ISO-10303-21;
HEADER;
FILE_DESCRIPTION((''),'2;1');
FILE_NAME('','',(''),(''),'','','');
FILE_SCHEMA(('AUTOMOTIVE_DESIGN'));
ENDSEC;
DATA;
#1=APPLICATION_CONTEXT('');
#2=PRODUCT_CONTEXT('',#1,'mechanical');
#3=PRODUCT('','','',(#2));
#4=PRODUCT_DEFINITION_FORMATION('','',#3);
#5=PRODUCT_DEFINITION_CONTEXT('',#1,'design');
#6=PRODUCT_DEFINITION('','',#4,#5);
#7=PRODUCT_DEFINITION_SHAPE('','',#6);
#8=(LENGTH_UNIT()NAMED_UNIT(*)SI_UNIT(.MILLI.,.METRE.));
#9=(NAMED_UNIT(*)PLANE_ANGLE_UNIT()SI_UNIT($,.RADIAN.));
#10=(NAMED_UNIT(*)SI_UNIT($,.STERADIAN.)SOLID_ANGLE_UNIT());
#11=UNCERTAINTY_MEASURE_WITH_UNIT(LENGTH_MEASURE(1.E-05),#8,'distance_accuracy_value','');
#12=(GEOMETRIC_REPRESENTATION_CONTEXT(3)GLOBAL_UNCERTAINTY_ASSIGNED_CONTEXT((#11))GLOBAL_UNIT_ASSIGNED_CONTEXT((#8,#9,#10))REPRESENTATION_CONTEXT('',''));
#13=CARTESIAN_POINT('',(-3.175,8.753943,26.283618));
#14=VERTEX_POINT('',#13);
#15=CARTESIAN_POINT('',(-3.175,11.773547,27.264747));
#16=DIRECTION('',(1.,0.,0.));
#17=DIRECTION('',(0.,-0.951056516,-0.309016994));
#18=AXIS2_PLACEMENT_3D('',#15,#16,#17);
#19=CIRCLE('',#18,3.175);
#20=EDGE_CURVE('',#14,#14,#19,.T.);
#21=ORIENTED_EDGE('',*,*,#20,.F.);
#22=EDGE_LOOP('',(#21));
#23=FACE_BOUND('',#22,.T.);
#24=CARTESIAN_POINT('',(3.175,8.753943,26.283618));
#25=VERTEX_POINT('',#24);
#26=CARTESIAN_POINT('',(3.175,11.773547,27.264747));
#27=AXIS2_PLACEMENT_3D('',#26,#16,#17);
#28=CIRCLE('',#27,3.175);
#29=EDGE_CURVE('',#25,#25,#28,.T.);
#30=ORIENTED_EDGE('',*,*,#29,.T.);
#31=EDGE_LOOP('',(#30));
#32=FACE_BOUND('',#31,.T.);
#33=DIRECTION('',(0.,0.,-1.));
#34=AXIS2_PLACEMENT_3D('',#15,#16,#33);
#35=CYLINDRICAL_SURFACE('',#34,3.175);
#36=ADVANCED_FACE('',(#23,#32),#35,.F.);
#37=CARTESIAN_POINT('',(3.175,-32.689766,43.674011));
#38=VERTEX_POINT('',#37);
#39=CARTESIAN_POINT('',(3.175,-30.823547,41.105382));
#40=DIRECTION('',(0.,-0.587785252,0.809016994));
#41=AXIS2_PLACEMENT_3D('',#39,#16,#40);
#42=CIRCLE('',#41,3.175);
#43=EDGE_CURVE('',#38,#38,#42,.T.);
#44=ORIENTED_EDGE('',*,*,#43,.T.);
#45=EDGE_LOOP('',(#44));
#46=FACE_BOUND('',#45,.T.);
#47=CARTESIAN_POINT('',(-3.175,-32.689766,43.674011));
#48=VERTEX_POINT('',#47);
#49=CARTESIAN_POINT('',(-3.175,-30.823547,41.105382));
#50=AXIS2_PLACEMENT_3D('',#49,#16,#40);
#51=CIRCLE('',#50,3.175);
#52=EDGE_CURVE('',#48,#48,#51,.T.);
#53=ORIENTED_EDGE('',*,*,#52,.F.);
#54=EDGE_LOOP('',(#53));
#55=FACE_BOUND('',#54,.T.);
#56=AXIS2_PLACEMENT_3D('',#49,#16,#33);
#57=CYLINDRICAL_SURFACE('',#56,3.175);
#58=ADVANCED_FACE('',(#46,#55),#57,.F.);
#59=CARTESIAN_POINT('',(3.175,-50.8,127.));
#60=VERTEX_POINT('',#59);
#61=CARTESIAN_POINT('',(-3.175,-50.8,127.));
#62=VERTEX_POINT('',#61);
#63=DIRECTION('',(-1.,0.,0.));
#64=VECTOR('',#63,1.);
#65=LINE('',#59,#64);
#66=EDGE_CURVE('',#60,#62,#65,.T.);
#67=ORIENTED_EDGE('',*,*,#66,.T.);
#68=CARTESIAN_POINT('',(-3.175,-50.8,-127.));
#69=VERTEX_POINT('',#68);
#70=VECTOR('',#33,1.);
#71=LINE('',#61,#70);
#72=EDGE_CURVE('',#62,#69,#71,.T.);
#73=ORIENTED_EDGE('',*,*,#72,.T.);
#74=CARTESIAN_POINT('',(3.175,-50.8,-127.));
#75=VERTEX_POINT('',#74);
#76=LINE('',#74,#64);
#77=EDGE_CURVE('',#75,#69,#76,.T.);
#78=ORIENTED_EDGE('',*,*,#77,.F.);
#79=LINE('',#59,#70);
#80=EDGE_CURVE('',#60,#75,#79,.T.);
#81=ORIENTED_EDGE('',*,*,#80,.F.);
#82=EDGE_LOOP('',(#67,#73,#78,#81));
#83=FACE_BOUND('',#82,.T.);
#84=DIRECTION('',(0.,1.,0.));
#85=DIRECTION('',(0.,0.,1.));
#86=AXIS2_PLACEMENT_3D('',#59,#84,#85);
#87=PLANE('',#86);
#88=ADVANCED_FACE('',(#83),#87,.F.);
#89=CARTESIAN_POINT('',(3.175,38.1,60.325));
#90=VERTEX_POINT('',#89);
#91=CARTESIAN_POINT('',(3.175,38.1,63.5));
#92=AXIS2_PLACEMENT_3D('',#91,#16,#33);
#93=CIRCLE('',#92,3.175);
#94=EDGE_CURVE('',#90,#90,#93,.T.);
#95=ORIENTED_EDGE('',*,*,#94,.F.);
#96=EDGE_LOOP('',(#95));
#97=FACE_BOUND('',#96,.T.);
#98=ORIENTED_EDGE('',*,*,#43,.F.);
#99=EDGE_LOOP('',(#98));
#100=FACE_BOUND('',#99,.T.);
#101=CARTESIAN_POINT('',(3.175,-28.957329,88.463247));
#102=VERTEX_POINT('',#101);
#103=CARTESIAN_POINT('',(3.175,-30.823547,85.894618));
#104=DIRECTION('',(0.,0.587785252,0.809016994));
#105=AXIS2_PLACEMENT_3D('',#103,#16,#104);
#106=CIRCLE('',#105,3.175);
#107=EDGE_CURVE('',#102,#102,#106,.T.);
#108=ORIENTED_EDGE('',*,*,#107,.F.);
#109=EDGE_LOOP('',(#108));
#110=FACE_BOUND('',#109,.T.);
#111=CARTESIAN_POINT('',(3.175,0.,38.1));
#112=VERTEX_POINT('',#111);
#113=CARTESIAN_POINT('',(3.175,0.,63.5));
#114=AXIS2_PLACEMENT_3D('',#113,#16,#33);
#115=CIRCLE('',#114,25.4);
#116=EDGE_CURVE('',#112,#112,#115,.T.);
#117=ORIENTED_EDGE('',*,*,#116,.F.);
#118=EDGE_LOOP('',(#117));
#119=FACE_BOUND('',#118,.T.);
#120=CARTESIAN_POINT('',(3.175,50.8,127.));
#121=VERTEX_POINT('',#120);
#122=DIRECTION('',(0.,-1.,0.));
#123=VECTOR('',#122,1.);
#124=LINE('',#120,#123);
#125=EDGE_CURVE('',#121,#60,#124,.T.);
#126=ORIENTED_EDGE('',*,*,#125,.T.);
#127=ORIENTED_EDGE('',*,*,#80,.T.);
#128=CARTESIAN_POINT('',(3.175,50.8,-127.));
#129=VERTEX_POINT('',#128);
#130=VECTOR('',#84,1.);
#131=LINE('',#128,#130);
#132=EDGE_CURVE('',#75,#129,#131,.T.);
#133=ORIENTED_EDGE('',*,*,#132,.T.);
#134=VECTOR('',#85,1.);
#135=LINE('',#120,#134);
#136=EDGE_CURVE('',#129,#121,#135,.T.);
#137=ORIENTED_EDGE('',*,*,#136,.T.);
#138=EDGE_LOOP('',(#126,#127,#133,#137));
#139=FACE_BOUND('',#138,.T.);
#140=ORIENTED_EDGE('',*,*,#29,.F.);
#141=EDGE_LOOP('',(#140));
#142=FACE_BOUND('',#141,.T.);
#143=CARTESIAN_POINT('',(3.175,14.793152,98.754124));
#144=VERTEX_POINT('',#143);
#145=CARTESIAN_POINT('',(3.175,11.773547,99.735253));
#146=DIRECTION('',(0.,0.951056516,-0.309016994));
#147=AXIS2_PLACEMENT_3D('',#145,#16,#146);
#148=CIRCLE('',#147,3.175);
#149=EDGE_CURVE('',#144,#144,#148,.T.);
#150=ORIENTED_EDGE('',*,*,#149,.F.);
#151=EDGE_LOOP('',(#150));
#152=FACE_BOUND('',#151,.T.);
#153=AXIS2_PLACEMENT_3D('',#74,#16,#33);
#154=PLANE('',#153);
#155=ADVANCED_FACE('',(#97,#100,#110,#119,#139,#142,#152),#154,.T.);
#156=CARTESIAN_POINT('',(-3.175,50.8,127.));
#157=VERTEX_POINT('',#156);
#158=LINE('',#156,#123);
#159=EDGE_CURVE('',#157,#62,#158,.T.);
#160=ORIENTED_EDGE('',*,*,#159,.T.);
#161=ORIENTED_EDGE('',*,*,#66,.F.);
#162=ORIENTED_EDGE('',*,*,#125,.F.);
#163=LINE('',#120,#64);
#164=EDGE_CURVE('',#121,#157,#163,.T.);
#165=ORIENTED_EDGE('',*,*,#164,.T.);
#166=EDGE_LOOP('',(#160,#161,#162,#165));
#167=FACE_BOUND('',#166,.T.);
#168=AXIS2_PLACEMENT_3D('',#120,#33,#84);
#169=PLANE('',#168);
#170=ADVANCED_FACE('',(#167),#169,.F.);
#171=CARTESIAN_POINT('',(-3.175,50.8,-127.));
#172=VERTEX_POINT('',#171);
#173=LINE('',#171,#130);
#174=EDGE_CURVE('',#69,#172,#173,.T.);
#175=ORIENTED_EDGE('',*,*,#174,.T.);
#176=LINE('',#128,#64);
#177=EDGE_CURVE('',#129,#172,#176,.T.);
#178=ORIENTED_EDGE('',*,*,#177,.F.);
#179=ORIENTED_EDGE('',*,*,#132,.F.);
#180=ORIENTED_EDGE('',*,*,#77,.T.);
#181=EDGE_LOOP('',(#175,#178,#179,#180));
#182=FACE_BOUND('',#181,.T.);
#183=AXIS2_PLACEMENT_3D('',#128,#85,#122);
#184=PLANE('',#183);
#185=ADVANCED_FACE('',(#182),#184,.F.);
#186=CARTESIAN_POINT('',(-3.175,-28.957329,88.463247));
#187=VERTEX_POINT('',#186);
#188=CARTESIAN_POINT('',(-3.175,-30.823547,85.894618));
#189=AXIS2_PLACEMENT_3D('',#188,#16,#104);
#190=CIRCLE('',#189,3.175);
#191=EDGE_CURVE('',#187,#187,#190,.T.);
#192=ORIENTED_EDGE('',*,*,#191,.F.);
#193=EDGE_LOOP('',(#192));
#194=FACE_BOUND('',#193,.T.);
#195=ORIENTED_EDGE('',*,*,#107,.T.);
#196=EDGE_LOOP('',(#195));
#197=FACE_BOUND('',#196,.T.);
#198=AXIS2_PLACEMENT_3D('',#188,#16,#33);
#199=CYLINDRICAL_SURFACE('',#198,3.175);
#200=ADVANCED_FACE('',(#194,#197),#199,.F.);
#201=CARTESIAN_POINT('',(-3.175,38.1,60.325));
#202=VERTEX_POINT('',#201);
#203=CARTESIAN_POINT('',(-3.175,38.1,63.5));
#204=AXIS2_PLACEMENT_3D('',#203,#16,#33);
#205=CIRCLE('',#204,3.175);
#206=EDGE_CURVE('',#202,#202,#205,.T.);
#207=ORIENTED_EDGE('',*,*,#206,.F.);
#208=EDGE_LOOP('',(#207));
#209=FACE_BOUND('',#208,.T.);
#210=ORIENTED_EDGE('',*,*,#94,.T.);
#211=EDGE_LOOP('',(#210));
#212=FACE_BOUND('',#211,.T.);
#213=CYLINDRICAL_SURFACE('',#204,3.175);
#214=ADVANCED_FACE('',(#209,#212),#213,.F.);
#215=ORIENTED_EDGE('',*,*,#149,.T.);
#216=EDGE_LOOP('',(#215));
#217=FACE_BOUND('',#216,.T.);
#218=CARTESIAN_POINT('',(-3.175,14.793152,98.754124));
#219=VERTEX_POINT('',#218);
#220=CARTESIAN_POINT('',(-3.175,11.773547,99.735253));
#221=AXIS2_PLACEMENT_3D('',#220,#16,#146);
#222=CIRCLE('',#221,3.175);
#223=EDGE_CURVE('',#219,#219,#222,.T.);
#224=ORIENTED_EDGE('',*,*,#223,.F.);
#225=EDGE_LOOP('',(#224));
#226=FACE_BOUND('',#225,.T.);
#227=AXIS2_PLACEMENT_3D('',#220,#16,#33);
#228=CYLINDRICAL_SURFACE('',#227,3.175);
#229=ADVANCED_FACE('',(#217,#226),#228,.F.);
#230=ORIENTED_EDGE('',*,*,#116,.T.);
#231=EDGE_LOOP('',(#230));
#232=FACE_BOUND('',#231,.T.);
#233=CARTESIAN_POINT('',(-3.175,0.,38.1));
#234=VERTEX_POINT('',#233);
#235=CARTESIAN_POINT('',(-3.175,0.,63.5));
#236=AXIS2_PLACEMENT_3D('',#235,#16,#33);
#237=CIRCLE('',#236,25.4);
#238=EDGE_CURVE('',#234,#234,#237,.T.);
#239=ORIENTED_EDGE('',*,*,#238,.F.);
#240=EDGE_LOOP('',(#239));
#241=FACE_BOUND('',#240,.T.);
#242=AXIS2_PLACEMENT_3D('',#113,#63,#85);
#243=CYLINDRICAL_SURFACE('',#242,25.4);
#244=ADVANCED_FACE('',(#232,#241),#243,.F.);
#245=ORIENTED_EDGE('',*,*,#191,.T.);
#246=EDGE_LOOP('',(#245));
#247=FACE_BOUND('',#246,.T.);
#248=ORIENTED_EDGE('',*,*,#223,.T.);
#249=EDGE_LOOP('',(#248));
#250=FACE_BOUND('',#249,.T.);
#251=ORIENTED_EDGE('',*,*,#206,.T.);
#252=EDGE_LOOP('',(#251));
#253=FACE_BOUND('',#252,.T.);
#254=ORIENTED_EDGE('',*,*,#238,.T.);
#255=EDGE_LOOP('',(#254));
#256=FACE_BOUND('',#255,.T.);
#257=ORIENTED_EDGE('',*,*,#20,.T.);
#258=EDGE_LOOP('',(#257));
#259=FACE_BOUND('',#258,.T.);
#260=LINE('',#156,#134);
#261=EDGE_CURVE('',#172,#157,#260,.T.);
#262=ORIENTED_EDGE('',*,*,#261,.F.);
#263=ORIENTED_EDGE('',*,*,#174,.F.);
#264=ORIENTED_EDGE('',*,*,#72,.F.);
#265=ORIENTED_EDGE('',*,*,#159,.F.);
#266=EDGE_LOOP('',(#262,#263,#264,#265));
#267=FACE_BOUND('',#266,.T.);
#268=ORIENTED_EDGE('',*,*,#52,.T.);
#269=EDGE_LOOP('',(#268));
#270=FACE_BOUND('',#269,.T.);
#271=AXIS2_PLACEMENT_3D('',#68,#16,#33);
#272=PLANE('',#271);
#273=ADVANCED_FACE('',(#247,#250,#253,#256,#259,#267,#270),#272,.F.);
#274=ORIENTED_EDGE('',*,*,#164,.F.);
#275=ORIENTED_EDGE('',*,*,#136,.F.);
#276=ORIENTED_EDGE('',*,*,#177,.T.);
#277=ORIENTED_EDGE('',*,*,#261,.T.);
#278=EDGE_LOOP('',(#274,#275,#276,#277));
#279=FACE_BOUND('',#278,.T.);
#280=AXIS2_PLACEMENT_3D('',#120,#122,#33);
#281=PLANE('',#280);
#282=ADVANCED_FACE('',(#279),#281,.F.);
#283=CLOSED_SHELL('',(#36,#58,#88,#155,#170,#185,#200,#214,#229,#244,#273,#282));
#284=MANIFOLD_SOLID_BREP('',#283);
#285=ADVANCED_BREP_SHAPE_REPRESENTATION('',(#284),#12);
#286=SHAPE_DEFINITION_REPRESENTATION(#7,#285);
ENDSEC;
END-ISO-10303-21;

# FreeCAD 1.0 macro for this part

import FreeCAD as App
import Part
import Sketcher

V = App.Vector
Q = App.Units.Quantity


def add_polygon(sketch, points):
    """Adds a closed chain of lines whose ends are joined by coincident constraints."""
    first, n = sketch.GeometryCount, len(points)
    for a, b in zip(points, points[1:] + points[:1]):
        sketch.addGeometry(Part.LineSegment(App.Vector(*a, 0), App.Vector(*b, 0)), False)
    for i in range(n):
        sketch.addConstraint(Sketcher.Constraint("Coincident", first + i, 2, first + (i + 1) % n, 1))

doc = App.newDocument("Part")
params = doc.addObject("Spreadsheet::Sheet", "Params")
for row, (alias, value) in enumerate([
    ("sketch1_diameter", "2 in"),
    ("sketch1_width", "4 in"),
    ("sketch1_height", "10 in"),
    ("pad1_length", "0.25 in"),
    ("sketch2_diameter", "0.25 in"),
], start=1):
    params.set(f"A{row}", alias)
    params.set(f"B{row}", "=" + value)
    params.setAlias(f"B{row}", alias)

body = doc.addObject("PartDesign::Body", "Body")

# Sketch on YZ plane
sketch1 = body.newObject("Sketcher::SketchObject", "Sketch")
sketch1.AttachmentSupport = (doc.getObject("YZ_Plane"), [""])
sketch1.MapMode = "FlatFace"
add_polygon(sketch1, [(51, 127), (-51, 127), (-51, -127), (51, -127)])  # lines 0-3
sketch1.addGeometry(Part.Circle(V(0, 64, 0), V(0, 0, 1), 25), False)  # 4
sketch1.addConstraint([
    Sketcher.Constraint("Horizontal", 0),
    Sketcher.Constraint("Vertical", 1),
    Sketcher.Constraint("Horizontal", 2),
    Sketcher.Constraint("Vertical", 3),
    Sketcher.Constraint("Symmetric", 0, 2, 2, 2, -1, 1),
    Sketcher.Constraint("PointOnObject", 4, 3, -2),
    Sketcher.Constraint("Diameter", 4, Q("2 in")),
    Sketcher.Constraint("DistanceX", 0, 2, 0, 1, Q("4 in")),
    Sketcher.Constraint("DistanceY", 1, 2, 1, 1, Q("10 in")),
    Sketcher.Constraint("DistanceY", -1, 1, 4, 3, Q("2.5 in")),
])
sketch1.setExpression("Constraints[10]", "Params.sketch1_diameter")
sketch1.setExpression("Constraints[11]", "Params.sketch1_width")
sketch1.setExpression("Constraints[12]", "Params.sketch1_height")
pad1 = body.newObject("PartDesign::Pad", "Pad")
pad1.Profile = sketch1
pad1.setExpression("Length", "Params.pad1_length")
pad1.Midplane = True

# Sketch on YZ plane
sketch2 = body.newObject("Sketcher::SketchObject", "Sketch001")
sketch2.AttachmentSupport = (doc.getObject("YZ_Plane"), [""])
sketch2.MapMode = "FlatFace"
sketch2.AttachmentOffset = App.Placement(V(0, 0, 0.125 * 25.4), App.Rotation())
sketch2.addGeometry(Part.Circle(V(38.1, 63.5, 0), V(0, 0, 1), 3.2), False)
sketch2.addConstraint([
    Sketcher.Constraint("Diameter", 0, Q("0.25 in")),
    Sketcher.Constraint("DistanceX", -1, 1, 0, 3, Q("1.5 in")),
    Sketcher.Constraint("DistanceY", -1, 1, 0, 3, Q("2.5 in")),
])
sketch2.setExpression("Constraints[0]", "Params.sketch2_diameter")
pocket1 = body.newObject("PartDesign::Pocket", "Pocket")
pocket1.Profile = sketch2
pocket1.Type = "ThroughAll"
doc.recompute()

datumline = body.newObject("PartDesign::Line", "DatumLine")
datumline.Placement = App.Placement(V(0, 0, 63.5), App.Rotation(V(0, 0, 1), V(1, 0, 0)))
polarpattern = body.newObject("PartDesign::PolarPattern", "PolarPattern")
polarpattern.Originals = [pocket1]
polarpattern.Axis = (datumline, [""])
polarpattern.Angle = 360
polarpattern.Occurrences = 5
body.Tip = polarpattern

doc.recompute()
